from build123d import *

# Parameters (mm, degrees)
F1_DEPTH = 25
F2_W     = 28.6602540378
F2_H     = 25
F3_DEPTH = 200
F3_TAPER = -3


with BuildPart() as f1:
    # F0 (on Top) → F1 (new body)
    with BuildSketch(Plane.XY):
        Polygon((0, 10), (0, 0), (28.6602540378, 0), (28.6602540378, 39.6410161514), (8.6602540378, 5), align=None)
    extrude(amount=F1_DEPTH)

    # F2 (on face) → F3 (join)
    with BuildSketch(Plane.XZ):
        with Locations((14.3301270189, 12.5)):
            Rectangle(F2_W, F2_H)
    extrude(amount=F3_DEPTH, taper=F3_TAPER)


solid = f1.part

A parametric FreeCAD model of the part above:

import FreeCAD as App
import Part
import Sketcher

V = App.Vector
Q = App.Units.Quantity

doc = App.newDocument("Part")
body = doc.addObject("PartDesign::Body", "Body")

sketch1 = body.newObject("Sketcher::SketchObject", "Sketch")
sketch1.AttachmentSupport = (doc.getObject("XY_Plane"), [""])
sketch1.MapMode = "FlatFace"
sketch1.addGeometry(Part.LineSegment(V(0, 10, 0), V(0, 0, 0)), False)
sketch1.addGeometry(Part.LineSegment(V(0, 0, 0), V(28.660254, 0, 0)), False)
sketch1.addGeometry(Part.LineSegment(V(28.660254, 0, 0), V(28.660254, 39.641016, 0)), False)
sketch1.addGeometry(Part.LineSegment(V(28.660254, 39.641016, 0), V(8.660254, 5, 0)), False)
sketch1.addGeometry(Part.LineSegment(V(8.660254, 5, 0), V(0, 10, 0)), False)
sketch1.addConstraint(Sketcher.Constraint("Coincident", 0, 2, 1, 1))
sketch1.addConstraint(Sketcher.Constraint("Coincident", 1, 2, 2, 1))
sketch1.addConstraint(Sketcher.Constraint("Coincident", 2, 2, 3, 1))
sketch1.addConstraint(Sketcher.Constraint("Coincident", 3, 2, 4, 1))
sketch1.addConstraint(Sketcher.Constraint("Coincident", 4, 2, 0, 1))
sketch1.addConstraint(Sketcher.Constraint("Vertical", 0))
sketch1.addConstraint(Sketcher.Constraint("Horizontal", 1))
sketch1.addConstraint(Sketcher.Constraint("Vertical", 2))
sketch1.addConstraint(Sketcher.Constraint("Coincident", 0, 2, -1, 1))
sketch1.addConstraint(Sketcher.Constraint("Perpendicular", 3, 4))
sketch1.addConstraint(Sketcher.Constraint("DistanceY", 0, 2, 0, 1, 10.0))
sketch1.addConstraint(Sketcher.Constraint("Angle", 3, Q("-120 deg")))
sketch1.addConstraint(Sketcher.Constraint("Distance", 3, 40.0))
sketch1.addConstraint(Sketcher.Constraint("Distance", 4, 10.0))
pad1 = body.newObject("PartDesign::Pad", "Pad")
pad1.Profile = sketch1
pad1.Length = 25

sketch2 = body.newObject("Sketcher::SketchObject", "Sketch001")
sketch2.AttachmentSupport = (doc.getObject("XZ_Plane"), [""])
sketch2.MapMode = "FlatFace"
sketch2.addGeometry(Part.LineSegment(V(0, 25, 0), V(0, 0, 0)), False)
sketch2.addGeometry(Part.LineSegment(V(0, 0, 0), V(28.660254, 0, 0)), False)
sketch2.addGeometry(Part.LineSegment(V(28.660254, 0, 0), V(28.660254, 25, 0)), False)
sketch2.addGeometry(Part.LineSegment(V(28.660254, 25, 0), V(0, 25, 0)), False)
sketch2.addConstraint(Sketcher.Constraint("Coincident", 0, 2, 1, 1))
sketch2.addConstraint(Sketcher.Constraint("Coincident", 1, 2, 2, 1))
sketch2.addConstraint(Sketcher.Constraint("Coincident", 2, 2, 3, 1))
sketch2.addConstraint(Sketcher.Constraint("Coincident", 3, 2, 0, 1))
sketch2.addConstraint(Sketcher.Constraint("Vertical", 0))
sketch2.addConstraint(Sketcher.Constraint("Horizontal", 1))
sketch2.addConstraint(Sketcher.Constraint("Vertical", 2))
sketch2.addConstraint(Sketcher.Constraint("Horizontal", 3))
sketch2.addConstraint(Sketcher.Constraint("Coincident", 0, 2, -1, 1))
sketch2.addConstraint(Sketcher.Constraint("DistanceY", 0, 2, 0, 1, 25.0))
sketch2.addConstraint(Sketcher.Constraint("DistanceX", 1, 1, 1, 2, 28.660254))
pad2 = body.newObject("PartDesign::Pad", "Pad001")
pad2.Profile = sketch2
pad2.Length = 200
pad2.TaperAngle = 3

doc.recompute()
